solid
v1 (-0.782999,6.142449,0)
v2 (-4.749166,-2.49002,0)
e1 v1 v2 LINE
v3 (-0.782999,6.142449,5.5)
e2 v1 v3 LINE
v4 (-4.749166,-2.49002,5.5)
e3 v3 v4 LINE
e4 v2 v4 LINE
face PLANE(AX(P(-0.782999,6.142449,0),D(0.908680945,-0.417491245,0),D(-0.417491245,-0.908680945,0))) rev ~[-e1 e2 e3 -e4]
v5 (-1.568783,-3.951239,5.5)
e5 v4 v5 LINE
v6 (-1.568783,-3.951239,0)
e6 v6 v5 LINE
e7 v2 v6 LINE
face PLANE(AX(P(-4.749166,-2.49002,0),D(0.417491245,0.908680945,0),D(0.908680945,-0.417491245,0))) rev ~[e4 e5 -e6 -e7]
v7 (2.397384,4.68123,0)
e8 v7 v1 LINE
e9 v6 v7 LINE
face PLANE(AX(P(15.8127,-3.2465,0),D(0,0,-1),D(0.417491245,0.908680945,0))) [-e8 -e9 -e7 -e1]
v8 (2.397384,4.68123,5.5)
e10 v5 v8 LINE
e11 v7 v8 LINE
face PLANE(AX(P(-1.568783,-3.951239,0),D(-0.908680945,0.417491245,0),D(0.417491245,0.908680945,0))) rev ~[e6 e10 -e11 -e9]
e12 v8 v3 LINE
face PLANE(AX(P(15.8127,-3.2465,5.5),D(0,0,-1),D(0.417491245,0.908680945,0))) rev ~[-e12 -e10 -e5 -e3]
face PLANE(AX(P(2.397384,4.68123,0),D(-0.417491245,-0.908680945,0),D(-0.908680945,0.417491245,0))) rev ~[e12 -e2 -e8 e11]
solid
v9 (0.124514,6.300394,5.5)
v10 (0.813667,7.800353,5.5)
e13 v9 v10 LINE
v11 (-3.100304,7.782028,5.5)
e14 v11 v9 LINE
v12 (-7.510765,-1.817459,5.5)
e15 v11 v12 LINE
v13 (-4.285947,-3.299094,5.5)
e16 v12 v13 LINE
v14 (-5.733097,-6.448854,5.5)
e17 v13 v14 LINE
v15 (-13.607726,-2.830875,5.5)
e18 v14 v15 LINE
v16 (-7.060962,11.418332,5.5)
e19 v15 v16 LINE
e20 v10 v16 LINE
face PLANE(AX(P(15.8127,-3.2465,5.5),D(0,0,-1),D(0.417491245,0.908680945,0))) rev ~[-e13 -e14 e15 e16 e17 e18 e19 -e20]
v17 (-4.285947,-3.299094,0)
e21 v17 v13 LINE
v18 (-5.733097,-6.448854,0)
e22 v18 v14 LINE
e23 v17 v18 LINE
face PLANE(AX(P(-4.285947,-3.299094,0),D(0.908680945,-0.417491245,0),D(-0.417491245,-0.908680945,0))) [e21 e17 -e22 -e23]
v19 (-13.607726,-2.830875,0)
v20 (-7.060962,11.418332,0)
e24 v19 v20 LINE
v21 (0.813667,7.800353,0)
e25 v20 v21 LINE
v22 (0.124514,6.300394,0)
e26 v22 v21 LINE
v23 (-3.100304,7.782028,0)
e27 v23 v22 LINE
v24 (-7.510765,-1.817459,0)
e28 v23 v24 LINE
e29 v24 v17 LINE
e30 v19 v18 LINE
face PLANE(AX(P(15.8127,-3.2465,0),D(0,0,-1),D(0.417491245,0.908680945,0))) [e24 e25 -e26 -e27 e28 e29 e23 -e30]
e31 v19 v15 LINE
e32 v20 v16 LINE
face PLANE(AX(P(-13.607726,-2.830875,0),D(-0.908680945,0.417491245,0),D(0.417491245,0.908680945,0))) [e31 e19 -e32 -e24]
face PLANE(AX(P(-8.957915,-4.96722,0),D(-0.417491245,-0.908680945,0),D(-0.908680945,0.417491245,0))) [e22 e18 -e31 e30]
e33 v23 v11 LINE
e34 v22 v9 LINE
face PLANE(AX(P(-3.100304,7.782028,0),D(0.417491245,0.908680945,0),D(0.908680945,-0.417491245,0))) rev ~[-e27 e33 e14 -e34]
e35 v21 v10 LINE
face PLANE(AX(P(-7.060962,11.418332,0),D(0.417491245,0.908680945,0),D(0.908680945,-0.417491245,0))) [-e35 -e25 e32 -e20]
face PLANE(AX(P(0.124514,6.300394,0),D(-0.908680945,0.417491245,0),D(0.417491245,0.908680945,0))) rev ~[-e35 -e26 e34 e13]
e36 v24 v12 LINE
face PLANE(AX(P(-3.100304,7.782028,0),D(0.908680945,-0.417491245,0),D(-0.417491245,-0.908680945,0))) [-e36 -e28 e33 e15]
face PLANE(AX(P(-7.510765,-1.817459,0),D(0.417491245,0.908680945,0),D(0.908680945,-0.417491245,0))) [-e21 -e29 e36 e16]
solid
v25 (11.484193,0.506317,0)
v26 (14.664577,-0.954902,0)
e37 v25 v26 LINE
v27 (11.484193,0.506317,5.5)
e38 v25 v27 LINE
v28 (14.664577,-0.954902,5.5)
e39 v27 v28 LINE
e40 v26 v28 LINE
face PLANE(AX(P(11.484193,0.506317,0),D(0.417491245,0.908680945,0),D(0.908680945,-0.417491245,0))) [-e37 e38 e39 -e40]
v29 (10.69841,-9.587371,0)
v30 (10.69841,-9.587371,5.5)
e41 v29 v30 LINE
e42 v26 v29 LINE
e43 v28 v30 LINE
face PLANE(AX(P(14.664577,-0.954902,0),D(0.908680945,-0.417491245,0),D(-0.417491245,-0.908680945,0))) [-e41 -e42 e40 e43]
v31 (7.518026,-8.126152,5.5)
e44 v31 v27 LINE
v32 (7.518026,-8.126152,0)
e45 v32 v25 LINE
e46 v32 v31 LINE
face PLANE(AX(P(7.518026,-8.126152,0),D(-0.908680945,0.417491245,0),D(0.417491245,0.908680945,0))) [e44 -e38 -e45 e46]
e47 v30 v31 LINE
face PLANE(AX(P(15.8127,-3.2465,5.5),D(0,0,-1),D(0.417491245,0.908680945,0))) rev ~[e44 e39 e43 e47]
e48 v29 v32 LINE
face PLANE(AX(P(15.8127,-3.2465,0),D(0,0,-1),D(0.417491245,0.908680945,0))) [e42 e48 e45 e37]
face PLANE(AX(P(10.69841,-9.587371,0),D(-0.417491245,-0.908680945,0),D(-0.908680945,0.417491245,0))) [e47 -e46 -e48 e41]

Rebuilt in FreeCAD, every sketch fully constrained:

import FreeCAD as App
import Part
import Sketcher
from FreeCAD import Vector
Q = App.Units.Quantity


def add_polygon(sketch, points):
    """Adds a closed chain of lines whose ends are joined by coincident constraints."""
    first, n = sketch.GeometryCount, len(points)
    for a, b in zip(points, points[1:] + points[:1]):
        sketch.addGeometry(Part.LineSegment(App.Vector(*a, 0), App.Vector(*b, 0)), False)
    for i in range(n):
        sketch.addConstraint(Sketcher.Constraint("Coincident", first + i, 2, first + (i + 1) % n, 1))

doc = App.newDocument("Part")
params = doc.addObject("Spreadsheet::Sheet", "Params")
for row, (alias, value) in enumerate([
    ("sketch1_length", "9.5 mm"),
    ("sketch1_length2", "3.5 mm"),
    ("pad1_length", "5.5 mm"),
    ("pad2_length", "5.5 mm"),
], start=1):
    params.set(f"A{row}", alias)
    params.set(f"B{row}", "=" + value)
    params.setAlias(f"B{row}", alias)

body = doc.addObject("PartDesign::Body", "Body")
body.AllowCompound = True

sketch1 = doc.addObject("Sketcher::SketchObject", "Sketch")
body.addObject(sketch1)
sketch1.AttachmentSupport = (doc.XY_Plane, [""])
sketch1.MapMode = "FlatFace"
add_polygon(sketch1, [(-4.749166, -2.49002), (-0.782999, 6.142449), (2.397384, 4.68123), (-1.568783, -3.951239)])
add_polygon(sketch1, [(11.484193, 0.506317), (14.664577, -0.954902), (10.69841, -9.587371), (7.518026, -8.126152)])
sketch1.addConstraint([
    Sketcher.Constraint("Perpendicular", 0, 1),
    Sketcher.Constraint("Perpendicular", 1, 2),
    Sketcher.Constraint("Perpendicular", 2, 3),
    Sketcher.Constraint("Parallel", 3, 4),
    Sketcher.Constraint("Perpendicular", 4, 5),
    Sketcher.Constraint("Perpendicular", 5, 6),
    Sketcher.Constraint("Perpendicular", 6, 7),
    Sketcher.Constraint("Equal", 3, 4),
    Sketcher.Constraint("Equal", 2, 5),
    Sketcher.Constraint("Distance", 0, Q("9.5 mm")),
    Sketcher.Constraint("Distance", 1, Q("3.5 mm")),
    Sketcher.Constraint("DistanceY", 3, 2, -1, 1, Q("2.49 mm")),
    Sketcher.Constraint("DistanceX", 0, 2, -1, 1, Q("0.783 mm")),
    Sketcher.Constraint("DistanceY", 4, 2, -1, 1, Q("0.955 mm")),
    Sketcher.Constraint("DistanceX", -1, 1, 6, 2, Q("7.518 mm")),
    Sketcher.Constraint("DistanceY", 6, 2, 2, 2, Q("4.175 mm")),
])
sketch1.setExpression("Constraints[17]", "Params.sketch1_length")
sketch1.setExpression("Constraints[18]", "Params.sketch1_length2")
pad1 = doc.addObject("PartDesign::Pad", "Pad")
body.addObject(pad1)
pad1.Profile = sketch1
pad1.setExpression("Length", "Params.pad1_length")

sketch2 = doc.addObject("Sketcher::SketchObject", "Sketch001")
body.addObject(sketch2)
sketch2.AttachmentSupport = (doc.XY_Plane, [""])
sketch2.MapMode = "FlatFace"
add_polygon(sketch2, [(-13.607726, -2.830875), (-7.060962, 11.418332), (0.813667, 7.800353), (0.124514, 6.300394), (-3.100304, 7.782028), (-7.510765, -1.817459), (-4.285947, -3.299094), (-5.733097, -6.448854)])
sketch2.addConstraint([
    Sketcher.Constraint("Perpendicular", 0, 1),
    Sketcher.Constraint("Perpendicular", 1, 2),
    Sketcher.Constraint("Perpendicular", 2, 3),
    Sketcher.Constraint("Perpendicular", 3, 4),
    Sketcher.Constraint("Perpendicular", 4, 5),
    Sketcher.Constraint("Perpendicular", 5, 6),
    Sketcher.Constraint("Perpendicular", 6, 7),
    Sketcher.Constraint("Equal", 3, 5),
    Sketcher.Constraint("DistanceY", 2, 2, 1, 2, Q("1.5 mm")),
    Sketcher.Constraint("Distance", 1, Q("8.666 mm")),
    Sketcher.Constraint("Distance", 3, Q("3.549 mm")),
    Sketcher.Constraint("DistanceX", 0, 2, -1, 1, Q("7.061 mm")),
    Sketcher.Constraint("DistanceY", -1, 1, 3, 2, Q("7.782 mm")),
    Sketcher.Constraint("DistanceX", 5, 2, -1, 1, Q("4.286 mm")),
    Sketcher.Constraint("DistanceY", 5, 2, -1, 1, Q("3.299 mm")),
    Sketcher.Constraint("DistanceX", 6, 2, -1, 1, Q("5.733 mm")),
])
pad2 = doc.addObject("PartDesign::Pad", "Pad001")
body.addObject(pad2)
pad2.Profile = sketch2
pad2.setExpression("Length", "Params.pad2_length")

doc.recompute()
